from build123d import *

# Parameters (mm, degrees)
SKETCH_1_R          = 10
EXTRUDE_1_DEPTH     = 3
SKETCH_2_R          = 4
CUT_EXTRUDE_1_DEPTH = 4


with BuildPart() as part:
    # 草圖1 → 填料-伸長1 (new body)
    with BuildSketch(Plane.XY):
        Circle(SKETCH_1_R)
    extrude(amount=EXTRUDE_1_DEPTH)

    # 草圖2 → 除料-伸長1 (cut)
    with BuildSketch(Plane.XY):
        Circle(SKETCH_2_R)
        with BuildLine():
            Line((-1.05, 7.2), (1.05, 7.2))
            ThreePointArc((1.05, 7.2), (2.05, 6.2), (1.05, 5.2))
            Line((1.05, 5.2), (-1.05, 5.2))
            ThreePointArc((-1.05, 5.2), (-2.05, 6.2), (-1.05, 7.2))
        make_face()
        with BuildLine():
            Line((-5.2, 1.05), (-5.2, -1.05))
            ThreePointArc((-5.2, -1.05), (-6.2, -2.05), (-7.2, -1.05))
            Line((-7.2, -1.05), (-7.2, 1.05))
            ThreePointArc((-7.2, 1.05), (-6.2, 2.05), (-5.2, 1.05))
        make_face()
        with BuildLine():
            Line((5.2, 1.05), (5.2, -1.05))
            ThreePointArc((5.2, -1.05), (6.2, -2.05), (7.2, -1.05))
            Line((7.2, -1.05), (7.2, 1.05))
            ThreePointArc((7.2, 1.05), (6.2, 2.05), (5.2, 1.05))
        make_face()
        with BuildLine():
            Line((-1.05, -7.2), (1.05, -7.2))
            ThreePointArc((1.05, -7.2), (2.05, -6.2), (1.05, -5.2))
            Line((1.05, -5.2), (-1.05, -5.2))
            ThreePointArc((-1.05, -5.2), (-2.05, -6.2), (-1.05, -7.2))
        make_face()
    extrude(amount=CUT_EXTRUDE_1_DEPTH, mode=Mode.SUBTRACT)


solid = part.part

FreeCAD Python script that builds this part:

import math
import FreeCAD as App
import Part
import Sketcher

V = App.Vector

doc = App.newDocument("Part")
body = doc.addObject("PartDesign::Body", "Body")

sketch1 = body.newObject("Sketcher::SketchObject", "Sketch")
sketch1.AttachmentSupport = (doc.getObject("XY_Plane"), [""])
sketch1.MapMode = "FlatFace"
sketch1.addGeometry(Part.Circle(V(0, 0, 0), V(0, 0, 1), 10), False)
sketch1.addConstraint(Sketcher.Constraint("Coincident", 0, 3, -1, 1))
sketch1.addConstraint(Sketcher.Constraint("Diameter", 0, 20.0))
pad1 = body.newObject("PartDesign::Pad", "Pad")
pad1.Profile = sketch1
pad1.Length = 3

sketch2 = body.newObject("Sketcher::SketchObject", "Sketch001")
sketch2.AttachmentSupport = (doc.getObject("XY_Plane"), [""])
sketch2.MapMode = "FlatFace"
sketch2.addGeometry(Part.Circle(V(0, 0, 0), V(0, 0, 1), 4), False)
sketch2.addGeometry(Part.LineSegment(V(1.1, 7.2, 0), V(-1.1, 7.2, 0)), False)
sketch2.addGeometry(Part.ArcOfCircle(Part.Circle(V(-1.1, 6.2, 0), V(0, 0, 1), 1), math.radians(90), math.radians(270)), False)
sketch2.addGeometry(Part.LineSegment(V(-1.1, 5.2, 0), V(1.1, 5.2, 0)), False)
sketch2.addGeometry(Part.ArcOfCircle(Part.Circle(V(1.1, 6.2, 0), V(0, 0, 1), 1), math.radians(-90), math.radians(90)), False)
sketch2.addGeometry(Part.LineSegment(V(-5.2, -1.1, 0), V(-5.2, 1.1, 0)), False)
sketch2.addGeometry(Part.ArcOfCircle(Part.Circle(V(-6.2, 1.1, 0), V(0, 0, 1), 1), math.radians(0), math.radians(180)), False)
sketch2.addGeometry(Part.LineSegment(V(-7.2, 1.1, 0), V(-7.2, -1.1, 0)), False)
sketch2.addGeometry(Part.ArcOfCircle(Part.Circle(V(-6.2, -1.1, 0), V(0, 0, 1), 1), math.radians(180), math.radians(360)), False)
sketch2.addGeometry(Part.LineSegment(V(5.2, 1.1, 0), V(5.2, -1.1, 0)), False)
sketch2.addGeometry(Part.ArcOfCircle(Part.Circle(V(6.2, -1.1, 0), V(0, 0, 1), 1), math.radians(180), math.radians(360)), False)
sketch2.addGeometry(Part.LineSegment(V(7.2, -1.1, 0), V(7.2, 1.1, 0)), False)
sketch2.addGeometry(Part.ArcOfCircle(Part.Circle(V(6.2, 1.1, 0), V(0, 0, 1), 1), math.radians(0), math.radians(180)), False)
sketch2.addGeometry(Part.LineSegment(V(-1.1, -7.2, 0), V(1.1, -7.2, 0)), False)
sketch2.addGeometry(Part.ArcOfCircle(Part.Circle(V(1.1, -6.2, 0), V(0, 0, 1), 1), math.radians(-90), math.radians(90)), False)
sketch2.addGeometry(Part.LineSegment(V(1.1, -5.2, 0), V(-1.1, -5.2, 0)), False)
sketch2.addGeometry(Part.ArcOfCircle(Part.Circle(V(-1.1, -6.2, 0), V(0, 0, 1), 1), math.radians(90), math.radians(270)), False)
sketch2.addConstraint(Sketcher.Constraint("Tangent", 1, 2, 2, 1))
sketch2.addConstraint(Sketcher.Constraint("Tangent", 2, 2, 3, 1))
sketch2.addConstraint(Sketcher.Constraint("Tangent", 3, 2, 4, 1))
sketch2.addConstraint(Sketcher.Constraint("Tangent", 4, 2, 1, 1))
sketch2.addConstraint(Sketcher.Constraint("Tangent", 5, 2, 6, 1))
sketch2.addConstraint(Sketcher.Constraint("Tangent", 6, 2, 7, 1))
sketch2.addConstraint(Sketcher.Constraint("Tangent", 7, 2, 8, 1))
sketch2.addConstraint(Sketcher.Constraint("Tangent", 8, 2, 5, 1))
sketch2.addConstraint(Sketcher.Constraint("Tangent", 9, 2, 10, 1))
sketch2.addConstraint(Sketcher.Constraint("Tangent", 10, 2, 11, 1))
sketch2.addConstraint(Sketcher.Constraint("Tangent", 11, 2, 12, 1))
sketch2.addConstraint(Sketcher.Constraint("Tangent", 12, 2, 9, 1))
sketch2.addConstraint(Sketcher.Constraint("Tangent", 13, 2, 14, 1))
sketch2.addConstraint(Sketcher.Constraint("Tangent", 14, 2, 15, 1))
sketch2.addConstraint(Sketcher.Constraint("Tangent", 15, 2, 16, 1))
sketch2.addConstraint(Sketcher.Constraint("Tangent", 16, 2, 13, 1))
sketch2.addConstraint(Sketcher.Constraint("Horizontal", 1))
sketch2.addConstraint(Sketcher.Constraint("Horizontal", 3))
sketch2.addConstraint(Sketcher.Constraint("Vertical", 5))
sketch2.addConstraint(Sketcher.Constraint("Vertical", 7))
sketch2.addConstraint(Sketcher.Constraint("Vertical", 9))
sketch2.addConstraint(Sketcher.Constraint("Vertical", 11))
sketch2.addConstraint(Sketcher.Constraint("Horizontal", 13))
sketch2.addConstraint(Sketcher.Constraint("Horizontal", 15))
sketch2.addConstraint(Sketcher.Constraint("Coincident", 0, 3, -1, 1))
sketch2.addConstraint(Sketcher.Constraint("Equal", 4, 6))
sketch2.addConstraint(Sketcher.Constraint("Equal", 8, 10))
sketch2.addConstraint(Sketcher.Constraint("Equal", 12, 14))
sketch2.addConstraint(Sketcher.Constraint("Symmetric", 6, 3, 10, 3, -1, 1))
sketch2.addConstraint(Sketcher.Constraint("Symmetric", 2, 3, 14, 3, -1, 1))
sketch2.addConstraint(Sketcher.Constraint("Horizontal", 8, 3, 10, 3))
sketch2.addConstraint(Sketcher.Constraint("Horizontal", 6, 3, 12, 3))
sketch2.addConstraint(Sketcher.Constraint("Vertical", 4, 3, 14, 3))
sketch2.addConstraint(Sketcher.Constraint("Vertical", 2, 3, 16, 3))
sketch2.addConstraint(Sketcher.Constraint("Equal", 15, 5))
sketch2.addConstraint(Sketcher.Constraint("Diameter", 0, 8.0))
sketch2.addConstraint(Sketcher.Constraint("Radius", 2, 1.0))
sketch2.addConstraint(Sketcher.Constraint("DistanceX", 1, 2, 1, 1, 2.1))
sketch2.addConstraint(Sketcher.Constraint("DistanceY", -1, 1, 2, 3, 6.2))
sketch2.addConstraint(Sketcher.Constraint("DistanceX", 6, 3, -1, 1, 6.2))
pocket1 = body.newObject("PartDesign::Pocket", "Pocket")
pocket1.Profile = sketch2
pocket1.Length = 4
pocket1.Reversed = True

doc.recompute()
